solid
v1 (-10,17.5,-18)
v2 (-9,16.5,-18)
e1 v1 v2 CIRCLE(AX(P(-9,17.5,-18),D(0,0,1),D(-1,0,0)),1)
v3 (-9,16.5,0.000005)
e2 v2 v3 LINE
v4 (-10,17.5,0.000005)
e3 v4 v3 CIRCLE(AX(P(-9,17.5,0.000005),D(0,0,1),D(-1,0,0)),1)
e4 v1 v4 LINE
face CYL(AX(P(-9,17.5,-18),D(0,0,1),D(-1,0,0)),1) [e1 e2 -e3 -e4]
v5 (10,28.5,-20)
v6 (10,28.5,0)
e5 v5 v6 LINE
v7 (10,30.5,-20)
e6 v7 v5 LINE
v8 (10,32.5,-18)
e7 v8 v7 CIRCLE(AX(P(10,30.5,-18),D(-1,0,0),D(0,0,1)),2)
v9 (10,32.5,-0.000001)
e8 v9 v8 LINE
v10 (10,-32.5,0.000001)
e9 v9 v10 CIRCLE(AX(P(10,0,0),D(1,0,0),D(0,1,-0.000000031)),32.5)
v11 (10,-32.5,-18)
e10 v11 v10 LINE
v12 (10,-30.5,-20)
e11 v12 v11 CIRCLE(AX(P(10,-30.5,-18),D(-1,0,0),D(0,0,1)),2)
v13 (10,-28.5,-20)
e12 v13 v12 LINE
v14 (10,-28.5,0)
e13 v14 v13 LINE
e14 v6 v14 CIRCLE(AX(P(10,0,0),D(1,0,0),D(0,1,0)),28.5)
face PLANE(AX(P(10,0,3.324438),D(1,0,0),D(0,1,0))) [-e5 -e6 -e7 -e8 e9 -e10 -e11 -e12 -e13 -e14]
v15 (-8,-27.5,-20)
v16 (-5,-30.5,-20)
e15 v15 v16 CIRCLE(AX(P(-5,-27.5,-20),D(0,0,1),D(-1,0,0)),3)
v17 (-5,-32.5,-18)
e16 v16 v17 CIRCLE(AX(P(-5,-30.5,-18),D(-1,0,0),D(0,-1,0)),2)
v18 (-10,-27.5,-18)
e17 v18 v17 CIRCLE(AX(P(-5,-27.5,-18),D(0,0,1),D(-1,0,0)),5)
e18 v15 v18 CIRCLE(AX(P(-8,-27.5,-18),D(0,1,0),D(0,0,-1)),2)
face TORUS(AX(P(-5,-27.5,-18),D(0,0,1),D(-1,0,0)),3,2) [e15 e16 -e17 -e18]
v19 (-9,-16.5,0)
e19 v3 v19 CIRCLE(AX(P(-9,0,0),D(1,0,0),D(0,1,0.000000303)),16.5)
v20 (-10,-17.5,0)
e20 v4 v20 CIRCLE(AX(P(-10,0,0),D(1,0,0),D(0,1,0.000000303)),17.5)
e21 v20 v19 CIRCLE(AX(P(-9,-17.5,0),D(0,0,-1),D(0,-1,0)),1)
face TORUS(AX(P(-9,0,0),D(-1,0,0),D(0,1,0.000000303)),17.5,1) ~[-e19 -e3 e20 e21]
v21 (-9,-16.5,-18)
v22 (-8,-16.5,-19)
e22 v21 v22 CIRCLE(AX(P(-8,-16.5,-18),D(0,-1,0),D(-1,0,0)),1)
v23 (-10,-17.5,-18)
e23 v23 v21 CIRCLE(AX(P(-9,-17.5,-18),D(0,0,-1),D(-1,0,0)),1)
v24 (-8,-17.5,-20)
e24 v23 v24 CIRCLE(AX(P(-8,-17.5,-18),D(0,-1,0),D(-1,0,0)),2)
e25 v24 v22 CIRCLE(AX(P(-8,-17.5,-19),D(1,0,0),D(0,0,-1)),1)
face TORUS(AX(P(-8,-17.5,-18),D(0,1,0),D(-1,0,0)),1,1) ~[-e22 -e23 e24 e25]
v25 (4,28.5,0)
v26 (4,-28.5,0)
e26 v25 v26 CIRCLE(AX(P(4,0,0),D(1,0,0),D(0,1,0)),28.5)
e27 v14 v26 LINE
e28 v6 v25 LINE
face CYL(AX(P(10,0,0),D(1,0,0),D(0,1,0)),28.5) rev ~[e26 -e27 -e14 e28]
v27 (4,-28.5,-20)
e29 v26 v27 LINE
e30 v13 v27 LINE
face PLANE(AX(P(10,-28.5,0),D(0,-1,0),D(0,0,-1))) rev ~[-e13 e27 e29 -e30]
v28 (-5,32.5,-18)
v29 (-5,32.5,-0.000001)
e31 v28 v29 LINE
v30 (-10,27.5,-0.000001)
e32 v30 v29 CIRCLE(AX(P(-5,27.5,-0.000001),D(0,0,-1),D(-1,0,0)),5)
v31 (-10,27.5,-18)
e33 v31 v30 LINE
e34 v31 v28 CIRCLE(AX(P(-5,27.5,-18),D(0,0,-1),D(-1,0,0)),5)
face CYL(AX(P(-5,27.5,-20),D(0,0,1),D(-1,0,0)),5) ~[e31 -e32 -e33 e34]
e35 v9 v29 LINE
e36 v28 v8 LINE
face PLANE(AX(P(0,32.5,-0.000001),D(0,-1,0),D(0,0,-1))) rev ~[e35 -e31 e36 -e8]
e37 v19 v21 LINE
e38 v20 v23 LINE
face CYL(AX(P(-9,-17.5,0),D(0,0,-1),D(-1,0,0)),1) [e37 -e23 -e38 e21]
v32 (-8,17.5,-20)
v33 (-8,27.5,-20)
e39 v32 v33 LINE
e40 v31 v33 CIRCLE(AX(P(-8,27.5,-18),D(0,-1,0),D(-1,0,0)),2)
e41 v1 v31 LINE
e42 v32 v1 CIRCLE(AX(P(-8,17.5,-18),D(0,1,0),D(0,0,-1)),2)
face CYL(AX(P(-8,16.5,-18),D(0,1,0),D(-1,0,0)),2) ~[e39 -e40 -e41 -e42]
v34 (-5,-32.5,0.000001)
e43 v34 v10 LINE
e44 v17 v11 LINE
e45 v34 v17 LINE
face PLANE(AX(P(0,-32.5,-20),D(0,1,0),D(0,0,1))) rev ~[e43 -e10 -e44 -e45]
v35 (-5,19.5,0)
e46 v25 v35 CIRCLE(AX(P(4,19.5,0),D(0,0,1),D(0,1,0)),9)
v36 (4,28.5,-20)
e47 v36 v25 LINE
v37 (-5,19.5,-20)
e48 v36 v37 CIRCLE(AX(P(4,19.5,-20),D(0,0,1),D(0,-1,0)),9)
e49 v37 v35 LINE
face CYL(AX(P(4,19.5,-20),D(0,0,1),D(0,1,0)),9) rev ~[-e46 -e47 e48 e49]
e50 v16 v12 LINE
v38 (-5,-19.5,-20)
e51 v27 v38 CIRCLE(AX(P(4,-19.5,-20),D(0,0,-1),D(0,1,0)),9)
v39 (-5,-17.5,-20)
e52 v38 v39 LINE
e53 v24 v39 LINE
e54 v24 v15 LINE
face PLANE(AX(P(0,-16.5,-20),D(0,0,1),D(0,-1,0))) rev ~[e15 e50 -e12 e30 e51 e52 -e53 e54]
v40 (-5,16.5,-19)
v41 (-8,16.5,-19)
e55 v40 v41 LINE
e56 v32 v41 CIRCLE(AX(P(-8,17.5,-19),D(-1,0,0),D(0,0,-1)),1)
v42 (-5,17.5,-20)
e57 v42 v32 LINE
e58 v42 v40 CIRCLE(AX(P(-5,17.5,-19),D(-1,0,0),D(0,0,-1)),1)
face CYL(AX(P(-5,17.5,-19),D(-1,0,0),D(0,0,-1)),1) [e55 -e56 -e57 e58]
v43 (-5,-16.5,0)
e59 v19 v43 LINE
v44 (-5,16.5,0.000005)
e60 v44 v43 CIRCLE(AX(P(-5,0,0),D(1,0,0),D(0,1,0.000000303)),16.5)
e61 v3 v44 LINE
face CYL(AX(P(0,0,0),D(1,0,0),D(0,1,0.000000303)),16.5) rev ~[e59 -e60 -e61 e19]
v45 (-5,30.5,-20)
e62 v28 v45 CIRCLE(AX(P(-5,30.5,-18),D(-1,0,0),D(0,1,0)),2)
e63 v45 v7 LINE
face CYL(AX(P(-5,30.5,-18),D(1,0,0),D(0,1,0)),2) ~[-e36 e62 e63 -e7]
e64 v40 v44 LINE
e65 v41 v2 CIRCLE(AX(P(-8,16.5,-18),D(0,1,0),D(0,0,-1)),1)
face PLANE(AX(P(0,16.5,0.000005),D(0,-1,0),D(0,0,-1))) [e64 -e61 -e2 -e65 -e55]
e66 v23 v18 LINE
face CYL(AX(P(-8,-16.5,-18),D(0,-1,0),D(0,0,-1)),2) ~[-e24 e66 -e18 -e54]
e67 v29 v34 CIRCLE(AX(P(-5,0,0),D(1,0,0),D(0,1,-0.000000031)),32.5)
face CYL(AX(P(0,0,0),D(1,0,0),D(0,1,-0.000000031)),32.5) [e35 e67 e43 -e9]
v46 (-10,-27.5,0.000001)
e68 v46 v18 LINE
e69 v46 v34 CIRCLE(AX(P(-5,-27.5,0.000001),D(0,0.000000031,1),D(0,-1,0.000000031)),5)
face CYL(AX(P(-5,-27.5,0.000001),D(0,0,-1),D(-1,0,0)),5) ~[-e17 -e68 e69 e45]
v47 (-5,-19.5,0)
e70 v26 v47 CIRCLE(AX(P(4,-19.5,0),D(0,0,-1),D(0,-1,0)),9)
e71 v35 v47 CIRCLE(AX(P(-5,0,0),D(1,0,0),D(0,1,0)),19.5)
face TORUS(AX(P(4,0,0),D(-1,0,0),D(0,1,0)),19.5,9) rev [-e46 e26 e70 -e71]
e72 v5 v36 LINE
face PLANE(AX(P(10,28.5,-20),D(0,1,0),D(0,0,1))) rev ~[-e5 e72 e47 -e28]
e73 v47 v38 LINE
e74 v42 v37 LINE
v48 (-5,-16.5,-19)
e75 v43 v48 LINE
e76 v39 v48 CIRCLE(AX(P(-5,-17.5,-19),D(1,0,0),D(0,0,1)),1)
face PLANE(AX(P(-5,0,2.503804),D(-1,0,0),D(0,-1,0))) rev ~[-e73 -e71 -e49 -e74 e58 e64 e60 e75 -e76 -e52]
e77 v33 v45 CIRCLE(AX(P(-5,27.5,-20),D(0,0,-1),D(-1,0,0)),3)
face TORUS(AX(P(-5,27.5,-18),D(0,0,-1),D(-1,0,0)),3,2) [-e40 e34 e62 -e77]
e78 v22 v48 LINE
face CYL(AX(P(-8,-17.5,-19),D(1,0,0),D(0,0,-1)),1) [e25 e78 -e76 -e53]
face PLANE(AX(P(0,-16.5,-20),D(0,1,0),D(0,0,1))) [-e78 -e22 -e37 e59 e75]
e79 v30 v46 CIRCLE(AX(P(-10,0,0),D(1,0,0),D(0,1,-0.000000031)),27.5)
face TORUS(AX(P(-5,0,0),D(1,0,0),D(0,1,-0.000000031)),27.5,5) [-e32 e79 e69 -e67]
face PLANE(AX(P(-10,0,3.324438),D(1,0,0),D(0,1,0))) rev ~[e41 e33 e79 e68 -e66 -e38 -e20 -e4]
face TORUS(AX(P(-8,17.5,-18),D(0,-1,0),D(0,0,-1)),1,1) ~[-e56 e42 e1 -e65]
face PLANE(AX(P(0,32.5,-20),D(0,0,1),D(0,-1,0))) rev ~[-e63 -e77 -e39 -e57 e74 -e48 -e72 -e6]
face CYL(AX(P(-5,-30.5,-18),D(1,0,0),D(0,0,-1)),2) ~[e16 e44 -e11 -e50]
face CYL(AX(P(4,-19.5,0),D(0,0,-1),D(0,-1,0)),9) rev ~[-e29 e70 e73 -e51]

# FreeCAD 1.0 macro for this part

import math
import FreeCAD as App
import Part
import Sketcher
Q = App.Units.Quantity


def edges_at(feature, points):
    """Names of the edges that pass closest to the given points."""
    edges = feature.Shape.Edges
    near = lambda p: min(range(len(edges)), key=lambda i: edges[i].distToShape(Part.Vertex(*p))[0])
    return sorted({f"Edge{near(p) + 1}" for p in points})

doc = App.newDocument("Part")
params = doc.addObject("Spreadsheet::Sheet", "Params")
for row, (alias, value) in enumerate([
    ("sketch1_radius", "32.5 mm"),
    ("sketch1_radius2", "16.5 mm"),
    ("sketch1_height", "20.000001 mm"),
    ("pad1_length", "20 mm"),
    ("sketch2_radius", "28.5 mm"),
    ("sketch2_radius2", "16.5 mm"),
    ("sketch2_height", "20 mm"),
    ("pocket1_length", "15 mm"),
    ("fillet_radius", "9 mm"),
    ("fillet2_radius", "5 mm"),
    ("fillet3_radius", "2 mm"),
    ("fillet4_radius", "1 mm"),
], start=1):
    params.set(f"A{row}", alias)
    params.set(f"B{row}", "=" + value)
    params.setAlias(f"B{row}", alias)

body = doc.addObject("PartDesign::Body", "Body")

# Sketch on YZ plane
sketch1 = body.newObject("Sketcher::SketchObject", "Sketch")
sketch1.AttachmentSupport = (doc.getObject("YZ_Plane"), [""])
sketch1.MapMode = "FlatFace"
sketch1.addGeometry([
    Part.ArcOfCircle(Part.Circle(App.Vector(0, 0, 0), App.Vector(0, 0, 1), 32.5), math.radians(-0.000002), math.radians(179.999998)),  # 0
    Part.LineSegment(App.Vector(-32.5, 0.000001, 0), App.Vector(-32.5, -20, 0)),  # 1
    Part.LineSegment(App.Vector(-32.5, -20, 0), App.Vector(-16.5, -20, 0)),  # 2
    Part.LineSegment(App.Vector(-16.5, -20, 0), App.Vector(-16.5, 0, 0)),  # 3
    Part.ArcOfCircle(Part.Circle(App.Vector(0, 0, 0), App.Vector(0, 0, 1), 16.5), math.radians(0.000017), math.radians(180)),  # 4
    Part.LineSegment(App.Vector(16.5, 0.000005, 0), App.Vector(16.5, -20, 0)),  # 5
    Part.LineSegment(App.Vector(16.5, -20, 0), App.Vector(32.5, -20, 0)),  # 6
    Part.LineSegment(App.Vector(32.5, -20, 0), App.Vector(32.5, -0.000001, 0)),  # 7
], False)
sketch1.addConstraint([
    Sketcher.Constraint("Tangent", 0, 2, 1, 1),
    Sketcher.Constraint("Coincident", 1, 2, 2, 1),
    Sketcher.Constraint("Coincident", 2, 2, 3, 1),
    Sketcher.Constraint("Tangent", 3, 2, 4, 2),
    Sketcher.Constraint("Tangent", 4, 1, 5, 1),
    Sketcher.Constraint("Coincident", 5, 2, 6, 1),
    Sketcher.Constraint("Coincident", 6, 2, 7, 1),
    Sketcher.Constraint("Tangent", 7, 2, 0, 1),
    Sketcher.Constraint("Vertical", 1),
    Sketcher.Constraint("Horizontal", 2),
    Sketcher.Constraint("Vertical", 3),
    Sketcher.Constraint("Vertical", 5),
    Sketcher.Constraint("Horizontal", 6),
    Sketcher.Constraint("Vertical", 7),
    Sketcher.Constraint("Coincident", 0, 3, -1, 1),
    Sketcher.Constraint("Coincident", 4, 3, -1, 1),
    Sketcher.Constraint("Horizontal", 2, 2, 5, 2),
    Sketcher.Constraint("Radius", 0, Q("32.5 mm")),
    Sketcher.Constraint("Radius", 4, Q("16.5 mm")),
    Sketcher.Constraint("DistanceY", 1, 2, 1, 1, Q("20.000001 mm")),
])
sketch1.setExpression("Constraints[17]", "Params.sketch1_radius")
sketch1.setExpression("Constraints[18]", "Params.sketch1_radius2")
sketch1.setExpression("Constraints[19]", "Params.sketch1_height")
pad1 = body.newObject("PartDesign::Pad", "Pad")
pad1.Profile = sketch1
pad1.setExpression("Length", "Params.pad1_length")
pad1.Midplane = True

# Sketch on YZ plane
sketch2 = body.newObject("Sketcher::SketchObject", "Sketch001")
sketch2.AttachmentSupport = (doc.getObject("YZ_Plane"), [""])
sketch2.MapMode = "FlatFace"
sketch2.AttachmentOffset = App.Placement(App.Vector(0, 0, 10), App.Rotation())
sketch2.addGeometry([
    Part.LineSegment(App.Vector(16.5, 0.000005, 0), App.Vector(16.5, -20, 0)),  # 0
    Part.LineSegment(App.Vector(16.5, -20, 0), App.Vector(28.5, -20, 0)),  # 1
    Part.LineSegment(App.Vector(28.5, -20, 0), App.Vector(28.5, 0, 0)),  # 2
    Part.ArcOfCircle(Part.Circle(App.Vector(0, 0, 0), App.Vector(0, 0, 1), 28.5), math.radians(0), math.radians(180)),  # 3
    Part.LineSegment(App.Vector(-28.5, 0, 0), App.Vector(-28.5, -20, 0)),  # 4
    Part.LineSegment(App.Vector(-28.5, -20, 0), App.Vector(-16.5, -20, 0)),  # 5
    Part.LineSegment(App.Vector(-16.5, -20, 0), App.Vector(-16.5, 0, 0)),  # 6
    Part.ArcOfCircle(Part.Circle(App.Vector(0, 0, 0), App.Vector(0, 0, 1), 16.5), math.radians(0.000017), math.radians(180)),  # 7
], False)
sketch2.addConstraint([
    Sketcher.Constraint("Coincident", 0, 2, 1, 1),
    Sketcher.Constraint("Coincident", 1, 2, 2, 1),
    Sketcher.Constraint("Tangent", 2, 2, 3, 1),
    Sketcher.Constraint("Tangent", 3, 2, 4, 1),
    Sketcher.Constraint("Coincident", 4, 2, 5, 1),
    Sketcher.Constraint("Coincident", 5, 2, 6, 1),
    Sketcher.Constraint("Tangent", 6, 2, 7, 2),
    Sketcher.Constraint("Tangent", 7, 1, 0, 1),
    Sketcher.Constraint("Vertical", 0),
    Sketcher.Constraint("Horizontal", 1),
    Sketcher.Constraint("Vertical", 2),
    Sketcher.Constraint("Vertical", 4),
    Sketcher.Constraint("Horizontal", 5),
    Sketcher.Constraint("Vertical", 6),
    Sketcher.Constraint("Coincident", 3, 3, -1, 1),
    Sketcher.Constraint("Coincident", 7, 3, -1, 1),
    Sketcher.Constraint("Horizontal", 1, 2, 4, 2),
    Sketcher.Constraint("Radius", 3, Q("28.5 mm")),
    Sketcher.Constraint("Radius", 7, Q("16.5 mm")),
    Sketcher.Constraint("DistanceY", 2, 1, 2, 2, Q("20 mm")),
])
sketch2.setExpression("Constraints[17]", "Params.sketch2_radius")
sketch2.setExpression("Constraints[18]", "Params.sketch2_radius2")
sketch2.setExpression("Constraints[19]", "Params.sketch2_height")
pocket1 = body.newObject("PartDesign::Pocket", "Pocket")
pocket1.Profile = sketch2
pocket1.setExpression("Length", "Params.pocket1_length")
doc.recompute()

fillet = body.newObject("PartDesign::Fillet", "Fillet")
fillet.Base = (pocket1, edges_at(pocket1, [(-5, 0, 28.5)]))
fillet.setExpression("Radius", "Params.fillet_radius")
doc.recompute()

fillet2 = body.newObject("PartDesign::Fillet", "Fillet001")
fillet2.Base = (fillet, edges_at(fillet, [(-10, 0, 32.5)]))
fillet2.setExpression("Radius", "Params.fillet2_radius")
doc.recompute()

fillet3 = body.newObject("PartDesign::Fillet", "Fillet002")
fillet3.Base = (fillet2, edges_at(fillet2, [(-8.536, 31.036, -20), (-8.536, -31.036, -20)]))
fillet3.setExpression("Radius", "Params.fillet3_radius")
doc.recompute()

fillet4 = body.newObject("PartDesign::Fillet", "Fillet003")
fillet4.Base = (fillet3, edges_at(fillet3, [(-10, 0, 16.5)]))
fillet4.setExpression("Radius", "Params.fillet4_radius")

doc.recompute()
